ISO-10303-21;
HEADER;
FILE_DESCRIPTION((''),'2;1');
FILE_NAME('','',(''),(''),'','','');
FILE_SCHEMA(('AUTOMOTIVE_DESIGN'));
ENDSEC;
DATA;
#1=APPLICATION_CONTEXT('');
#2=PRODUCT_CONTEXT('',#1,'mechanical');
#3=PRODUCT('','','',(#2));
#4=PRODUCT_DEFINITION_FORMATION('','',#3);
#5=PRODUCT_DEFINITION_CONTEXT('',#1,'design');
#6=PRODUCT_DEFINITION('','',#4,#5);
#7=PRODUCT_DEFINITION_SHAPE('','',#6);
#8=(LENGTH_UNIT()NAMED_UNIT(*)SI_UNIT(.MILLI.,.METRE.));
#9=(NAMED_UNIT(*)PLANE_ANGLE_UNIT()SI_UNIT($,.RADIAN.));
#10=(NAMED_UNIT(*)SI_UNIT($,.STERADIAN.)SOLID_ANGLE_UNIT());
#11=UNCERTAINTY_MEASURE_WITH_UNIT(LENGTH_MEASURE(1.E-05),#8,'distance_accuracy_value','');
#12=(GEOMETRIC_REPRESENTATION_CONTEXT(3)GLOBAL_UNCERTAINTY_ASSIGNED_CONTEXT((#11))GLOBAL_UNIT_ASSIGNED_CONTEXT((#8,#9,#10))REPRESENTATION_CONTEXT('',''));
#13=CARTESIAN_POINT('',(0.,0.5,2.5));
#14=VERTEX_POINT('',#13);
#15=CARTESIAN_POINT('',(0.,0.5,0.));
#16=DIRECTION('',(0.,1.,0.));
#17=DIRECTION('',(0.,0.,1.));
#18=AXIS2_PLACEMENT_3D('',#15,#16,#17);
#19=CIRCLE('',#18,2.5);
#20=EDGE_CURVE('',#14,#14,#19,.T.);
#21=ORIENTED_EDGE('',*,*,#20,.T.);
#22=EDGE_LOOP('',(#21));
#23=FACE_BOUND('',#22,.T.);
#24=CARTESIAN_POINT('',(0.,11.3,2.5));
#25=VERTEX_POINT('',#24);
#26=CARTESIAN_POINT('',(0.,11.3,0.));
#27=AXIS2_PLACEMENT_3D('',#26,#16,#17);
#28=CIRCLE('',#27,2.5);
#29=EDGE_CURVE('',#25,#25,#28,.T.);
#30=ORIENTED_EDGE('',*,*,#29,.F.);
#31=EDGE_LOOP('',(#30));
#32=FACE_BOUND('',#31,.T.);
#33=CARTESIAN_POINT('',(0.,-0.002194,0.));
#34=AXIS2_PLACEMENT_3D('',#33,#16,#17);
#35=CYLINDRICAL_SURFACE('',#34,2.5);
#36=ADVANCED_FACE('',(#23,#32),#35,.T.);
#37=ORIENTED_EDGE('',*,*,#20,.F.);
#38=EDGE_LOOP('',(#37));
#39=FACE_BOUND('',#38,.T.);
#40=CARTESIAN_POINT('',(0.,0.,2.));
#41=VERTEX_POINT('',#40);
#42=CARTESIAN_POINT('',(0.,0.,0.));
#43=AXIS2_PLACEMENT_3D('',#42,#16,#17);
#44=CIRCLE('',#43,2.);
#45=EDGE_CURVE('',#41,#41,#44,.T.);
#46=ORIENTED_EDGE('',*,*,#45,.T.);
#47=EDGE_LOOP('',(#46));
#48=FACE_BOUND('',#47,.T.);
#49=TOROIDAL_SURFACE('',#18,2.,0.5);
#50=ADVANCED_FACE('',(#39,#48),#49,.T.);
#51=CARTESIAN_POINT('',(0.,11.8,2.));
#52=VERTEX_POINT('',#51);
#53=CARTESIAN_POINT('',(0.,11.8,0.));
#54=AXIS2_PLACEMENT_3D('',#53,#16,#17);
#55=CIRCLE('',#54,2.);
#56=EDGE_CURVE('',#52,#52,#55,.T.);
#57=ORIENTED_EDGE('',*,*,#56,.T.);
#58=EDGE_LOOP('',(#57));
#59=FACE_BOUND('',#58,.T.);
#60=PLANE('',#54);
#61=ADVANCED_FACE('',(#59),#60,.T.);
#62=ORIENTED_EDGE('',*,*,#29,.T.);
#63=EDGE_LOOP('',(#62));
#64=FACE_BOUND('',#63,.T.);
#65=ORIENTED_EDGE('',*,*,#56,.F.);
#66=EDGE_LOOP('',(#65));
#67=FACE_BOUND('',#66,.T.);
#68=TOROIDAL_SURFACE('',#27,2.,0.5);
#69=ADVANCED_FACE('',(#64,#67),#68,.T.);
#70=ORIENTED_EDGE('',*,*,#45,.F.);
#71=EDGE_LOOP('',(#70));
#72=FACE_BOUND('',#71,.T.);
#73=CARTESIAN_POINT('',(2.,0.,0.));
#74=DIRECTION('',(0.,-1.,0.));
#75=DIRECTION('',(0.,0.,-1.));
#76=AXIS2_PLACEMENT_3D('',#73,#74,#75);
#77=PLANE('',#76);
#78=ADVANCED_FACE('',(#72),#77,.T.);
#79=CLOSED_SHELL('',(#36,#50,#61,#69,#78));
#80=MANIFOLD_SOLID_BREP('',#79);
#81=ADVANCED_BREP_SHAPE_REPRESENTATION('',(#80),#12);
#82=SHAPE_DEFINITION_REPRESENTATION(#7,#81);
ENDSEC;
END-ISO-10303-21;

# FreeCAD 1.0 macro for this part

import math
import FreeCAD as App
import Part
import Sketcher
from FreeCAD import Vector
Q = App.Units.Quantity

doc = App.newDocument("Part")
body = doc.addObject("PartDesign::Body", "Body")

sketch1 = body.newObject("Sketcher::SketchObject", "Sketch")
sketch1.AttachmentSupport = (doc.getObject("XY_Plane"), [""])
sketch1.MapMode = "FlatFace"
sketch1.addGeometry(Part.LineSegment(Vector(2, 0, 0), Vector(0, 0, 0)), False)
sketch1.addGeometry(Part.LineSegment(Vector(0, 0, 0), Vector(0, 11.8, 0)), False)
sketch1.addGeometry(Part.LineSegment(Vector(0, 11.8, 0), Vector(2, 11.8, 0)), False)
sketch1.addGeometry(Part.ArcOfCircle(Part.Circle(Vector(2, 11.3, 0), Vector(0, 0, 1), 0.5), math.radians(0), math.radians(90)), False)
sketch1.addGeometry(Part.LineSegment(Vector(2.5, 11.3, 0), Vector(2.5, 0.5, 0)), False)
sketch1.addGeometry(Part.ArcOfCircle(Part.Circle(Vector(2, 0.5, 0), Vector(0, 0, 1), 0.5), math.radians(-90), math.radians(0)), False)
sketch1.addConstraint(Sketcher.Constraint("Coincident", 0, 2, 1, 1))
sketch1.addConstraint(Sketcher.Constraint("Coincident", 1, 2, 2, 1))
sketch1.addConstraint(Sketcher.Constraint("Tangent", 2, 2, 3, 2))
sketch1.addConstraint(Sketcher.Constraint("Tangent", 3, 1, 4, 1))
sketch1.addConstraint(Sketcher.Constraint("Tangent", 4, 2, 5, 2))
sketch1.addConstraint(Sketcher.Constraint("Tangent", 5, 1, 0, 1))
sketch1.addConstraint(Sketcher.Constraint("Horizontal", 0))
sketch1.addConstraint(Sketcher.Constraint("Vertical", 1))
sketch1.addConstraint(Sketcher.Constraint("Horizontal", 2))
sketch1.addConstraint(Sketcher.Constraint("Vertical", 4))
sketch1.addConstraint(Sketcher.Constraint("Coincident", 0, 2, -1, 1))
sketch1.addConstraint(Sketcher.Constraint("Equal", 3, 5))
sketch1.addConstraint(Sketcher.Constraint("Radius", 3, Q("0.5 mm")))
sketch1.addConstraint(Sketcher.Constraint("DistanceX", 0, 2, 0, 1, Q("2 mm")))
sketch1.addConstraint(Sketcher.Constraint("DistanceY", 1, 1, 1, 2, Q("11.8 mm")))
revolution = body.newObject("PartDesign::Revolution", "Revolution")
revolution.Profile = sketch1
revolution.ReferenceAxis = (sketch1, ["V_Axis"])
revolution.Angle = 360

doc.recompute()
